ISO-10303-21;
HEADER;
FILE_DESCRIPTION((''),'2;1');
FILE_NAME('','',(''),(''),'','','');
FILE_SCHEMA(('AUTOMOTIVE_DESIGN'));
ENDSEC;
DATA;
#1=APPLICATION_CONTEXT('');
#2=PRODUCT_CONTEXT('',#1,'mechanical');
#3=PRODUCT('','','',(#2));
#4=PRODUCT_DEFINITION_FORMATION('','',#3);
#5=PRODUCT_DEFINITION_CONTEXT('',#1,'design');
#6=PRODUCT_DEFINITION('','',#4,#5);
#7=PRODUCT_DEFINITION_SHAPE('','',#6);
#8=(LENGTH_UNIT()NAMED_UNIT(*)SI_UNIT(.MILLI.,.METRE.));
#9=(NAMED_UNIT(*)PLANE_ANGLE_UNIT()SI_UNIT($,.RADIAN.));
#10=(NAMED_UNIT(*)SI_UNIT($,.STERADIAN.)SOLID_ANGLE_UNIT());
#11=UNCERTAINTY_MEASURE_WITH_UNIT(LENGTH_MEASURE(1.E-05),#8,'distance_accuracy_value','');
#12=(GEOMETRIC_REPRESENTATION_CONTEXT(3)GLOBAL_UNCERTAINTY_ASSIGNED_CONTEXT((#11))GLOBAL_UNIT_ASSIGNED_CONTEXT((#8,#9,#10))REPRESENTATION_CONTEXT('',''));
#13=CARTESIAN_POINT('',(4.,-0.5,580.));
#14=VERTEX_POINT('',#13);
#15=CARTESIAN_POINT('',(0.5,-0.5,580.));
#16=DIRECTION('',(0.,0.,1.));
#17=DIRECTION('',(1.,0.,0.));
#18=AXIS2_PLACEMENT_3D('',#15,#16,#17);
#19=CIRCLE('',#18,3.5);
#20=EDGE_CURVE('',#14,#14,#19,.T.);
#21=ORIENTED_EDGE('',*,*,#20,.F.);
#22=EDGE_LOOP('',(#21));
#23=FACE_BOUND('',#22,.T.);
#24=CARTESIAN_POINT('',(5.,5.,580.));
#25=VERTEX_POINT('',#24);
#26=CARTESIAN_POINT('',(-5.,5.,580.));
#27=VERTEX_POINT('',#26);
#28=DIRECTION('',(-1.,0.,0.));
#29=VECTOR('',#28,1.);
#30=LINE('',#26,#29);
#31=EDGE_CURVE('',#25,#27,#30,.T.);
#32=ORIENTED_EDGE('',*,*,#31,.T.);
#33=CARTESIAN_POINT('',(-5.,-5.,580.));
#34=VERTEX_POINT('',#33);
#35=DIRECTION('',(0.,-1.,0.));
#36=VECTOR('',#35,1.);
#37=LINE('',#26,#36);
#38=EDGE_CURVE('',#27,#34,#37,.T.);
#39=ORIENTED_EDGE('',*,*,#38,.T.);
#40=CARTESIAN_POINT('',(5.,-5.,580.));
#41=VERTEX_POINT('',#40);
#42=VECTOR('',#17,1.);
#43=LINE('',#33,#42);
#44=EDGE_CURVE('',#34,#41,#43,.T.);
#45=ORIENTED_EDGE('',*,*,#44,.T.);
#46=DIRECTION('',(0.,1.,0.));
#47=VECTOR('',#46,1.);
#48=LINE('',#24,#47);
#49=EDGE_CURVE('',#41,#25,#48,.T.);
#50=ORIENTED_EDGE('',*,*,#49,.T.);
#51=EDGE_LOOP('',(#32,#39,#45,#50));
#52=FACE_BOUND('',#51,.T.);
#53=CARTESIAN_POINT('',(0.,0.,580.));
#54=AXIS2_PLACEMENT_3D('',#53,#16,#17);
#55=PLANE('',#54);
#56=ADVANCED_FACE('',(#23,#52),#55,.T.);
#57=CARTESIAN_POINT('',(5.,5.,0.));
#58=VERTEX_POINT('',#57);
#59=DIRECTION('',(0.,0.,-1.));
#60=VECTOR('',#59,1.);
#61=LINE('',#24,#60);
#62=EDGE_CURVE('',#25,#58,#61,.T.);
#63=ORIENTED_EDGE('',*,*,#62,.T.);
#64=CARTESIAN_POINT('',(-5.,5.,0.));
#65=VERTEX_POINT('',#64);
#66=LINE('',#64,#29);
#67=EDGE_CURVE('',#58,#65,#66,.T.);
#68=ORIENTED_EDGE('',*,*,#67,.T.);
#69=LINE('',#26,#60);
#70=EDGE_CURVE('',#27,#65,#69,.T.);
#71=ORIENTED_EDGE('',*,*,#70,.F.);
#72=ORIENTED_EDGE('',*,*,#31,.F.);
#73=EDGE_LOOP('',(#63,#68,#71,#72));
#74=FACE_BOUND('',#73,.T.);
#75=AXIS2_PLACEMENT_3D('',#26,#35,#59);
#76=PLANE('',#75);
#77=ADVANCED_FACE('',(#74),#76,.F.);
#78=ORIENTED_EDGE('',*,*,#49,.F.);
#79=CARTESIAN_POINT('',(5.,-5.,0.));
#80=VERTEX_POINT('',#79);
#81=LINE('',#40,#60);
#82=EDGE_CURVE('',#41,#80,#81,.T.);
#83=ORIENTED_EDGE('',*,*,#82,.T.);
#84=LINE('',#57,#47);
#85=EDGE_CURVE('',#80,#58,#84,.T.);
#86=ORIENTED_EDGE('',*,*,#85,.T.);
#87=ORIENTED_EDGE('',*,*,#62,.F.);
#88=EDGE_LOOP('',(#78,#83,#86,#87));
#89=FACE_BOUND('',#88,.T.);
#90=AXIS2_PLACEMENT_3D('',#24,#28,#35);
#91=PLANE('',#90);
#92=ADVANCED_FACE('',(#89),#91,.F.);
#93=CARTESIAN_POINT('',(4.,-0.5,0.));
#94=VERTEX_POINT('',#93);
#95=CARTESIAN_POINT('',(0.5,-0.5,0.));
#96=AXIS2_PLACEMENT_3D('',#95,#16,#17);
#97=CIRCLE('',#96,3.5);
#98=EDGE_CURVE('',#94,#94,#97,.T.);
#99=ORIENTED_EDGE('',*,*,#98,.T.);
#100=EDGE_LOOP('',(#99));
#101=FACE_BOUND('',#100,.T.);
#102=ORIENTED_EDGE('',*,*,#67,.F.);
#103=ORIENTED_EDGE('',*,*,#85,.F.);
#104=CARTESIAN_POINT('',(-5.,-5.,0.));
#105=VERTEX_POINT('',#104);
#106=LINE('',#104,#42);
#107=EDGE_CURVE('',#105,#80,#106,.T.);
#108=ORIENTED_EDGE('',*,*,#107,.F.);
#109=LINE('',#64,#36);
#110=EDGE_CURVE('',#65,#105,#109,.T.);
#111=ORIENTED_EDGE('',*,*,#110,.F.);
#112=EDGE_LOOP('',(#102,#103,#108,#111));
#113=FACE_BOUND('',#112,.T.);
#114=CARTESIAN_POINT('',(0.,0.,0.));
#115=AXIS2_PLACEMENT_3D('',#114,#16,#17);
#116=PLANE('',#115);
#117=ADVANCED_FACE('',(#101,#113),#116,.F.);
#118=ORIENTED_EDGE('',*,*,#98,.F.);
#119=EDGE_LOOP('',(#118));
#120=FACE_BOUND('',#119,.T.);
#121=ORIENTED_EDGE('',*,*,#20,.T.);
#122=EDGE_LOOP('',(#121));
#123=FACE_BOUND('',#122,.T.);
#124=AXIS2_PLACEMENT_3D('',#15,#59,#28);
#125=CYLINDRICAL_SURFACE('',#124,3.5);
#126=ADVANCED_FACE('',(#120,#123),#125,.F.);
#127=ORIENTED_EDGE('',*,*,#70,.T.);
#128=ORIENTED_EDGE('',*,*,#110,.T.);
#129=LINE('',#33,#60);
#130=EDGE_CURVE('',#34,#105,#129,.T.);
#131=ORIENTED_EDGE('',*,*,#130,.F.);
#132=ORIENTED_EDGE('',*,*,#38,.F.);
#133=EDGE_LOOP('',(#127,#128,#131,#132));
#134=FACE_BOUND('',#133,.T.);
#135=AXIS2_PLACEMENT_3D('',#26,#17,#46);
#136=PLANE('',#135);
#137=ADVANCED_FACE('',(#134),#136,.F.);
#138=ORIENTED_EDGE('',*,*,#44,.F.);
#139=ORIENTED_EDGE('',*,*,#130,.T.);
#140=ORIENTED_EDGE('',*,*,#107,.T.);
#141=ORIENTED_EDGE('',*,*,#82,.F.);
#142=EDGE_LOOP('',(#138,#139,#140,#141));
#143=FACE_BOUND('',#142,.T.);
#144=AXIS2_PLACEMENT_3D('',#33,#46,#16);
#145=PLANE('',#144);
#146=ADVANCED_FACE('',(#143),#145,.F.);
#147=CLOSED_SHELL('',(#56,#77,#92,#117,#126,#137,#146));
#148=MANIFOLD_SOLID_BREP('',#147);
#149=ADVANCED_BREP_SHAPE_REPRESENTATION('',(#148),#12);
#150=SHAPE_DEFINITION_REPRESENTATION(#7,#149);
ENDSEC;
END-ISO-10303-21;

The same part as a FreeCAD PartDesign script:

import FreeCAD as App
import Part
import Sketcher


def add_polygon(sketch, points):
    """Adds a closed chain of lines whose ends are joined by coincident constraints."""
    first, n = sketch.GeometryCount, len(points)
    for a, b in zip(points, points[1:] + points[:1]):
        sketch.addGeometry(Part.LineSegment(App.Vector(*a, 0), App.Vector(*b, 0)), False)
    for i in range(n):
        sketch.addConstraint(Sketcher.Constraint("Coincident", first + i, 2, first + (i + 1) % n, 1))

doc = App.newDocument("Part")
params = doc.addObject("Spreadsheet::Sheet", "Params")
for row, (alias, value) in enumerate([
    ("sketch1_diameter", "7 mm"),
    ("sketch1_width", "10 mm"),
    ("pad1_length", "580 mm"),
], start=1):
    params.set(f"A{row}", alias)
    params.set(f"B{row}", "=" + value)
    params.setAlias(f"B{row}", alias)

body = doc.addObject("PartDesign::Body", "Body")

# Sketch on XY plane
sketch1 = doc.addObject("Sketcher::SketchObject", "Sketch")
body.addObject(sketch1)
sketch1.AttachmentSupport = (doc.XY_Plane, [""])
sketch1.MapMode = "FlatFace"
add_polygon(sketch1, [(-5, 5), (-5, -5), (5, -5), (5, 5)])  # lines 0-3
sketch1.addGeometry(Part.Circle(App.Vector(0.5, -0.5, 0), App.Vector(0, 0, 1), 3.5), False)  # 4
sketch1.addConstraint([
    Sketcher.Constraint("Vertical", 0),
    Sketcher.Constraint("Horizontal", 1),
    Sketcher.Constraint("Vertical", 2),
    Sketcher.Constraint("Horizontal", 3),
    Sketcher.Constraint("Symmetric", 0, 2, 2, 2, -1, 1),
    Sketcher.Constraint("Equal", 3, 0),
    Sketcher.Constraint("Diameter", 4, 7.0),
    Sketcher.Constraint("DistanceX", 1, 1, 1, 2, 10.0),
    Sketcher.Constraint("DistanceX", -1, 1, 4, 3, 0.5),
    Sketcher.Constraint("DistanceY", 4, 3, -1, 1, 0.5),
])
sketch1.setExpression("Constraints[10]", "Params.sketch1_diameter")
sketch1.setExpression("Constraints[11]", "Params.sketch1_width")
pad1 = doc.addObject("PartDesign::Pad", "Pad")
body.addObject(pad1)
pad1.Profile = sketch1
pad1.setExpression("Length", "Params.pad1_length")

doc.recompute()
